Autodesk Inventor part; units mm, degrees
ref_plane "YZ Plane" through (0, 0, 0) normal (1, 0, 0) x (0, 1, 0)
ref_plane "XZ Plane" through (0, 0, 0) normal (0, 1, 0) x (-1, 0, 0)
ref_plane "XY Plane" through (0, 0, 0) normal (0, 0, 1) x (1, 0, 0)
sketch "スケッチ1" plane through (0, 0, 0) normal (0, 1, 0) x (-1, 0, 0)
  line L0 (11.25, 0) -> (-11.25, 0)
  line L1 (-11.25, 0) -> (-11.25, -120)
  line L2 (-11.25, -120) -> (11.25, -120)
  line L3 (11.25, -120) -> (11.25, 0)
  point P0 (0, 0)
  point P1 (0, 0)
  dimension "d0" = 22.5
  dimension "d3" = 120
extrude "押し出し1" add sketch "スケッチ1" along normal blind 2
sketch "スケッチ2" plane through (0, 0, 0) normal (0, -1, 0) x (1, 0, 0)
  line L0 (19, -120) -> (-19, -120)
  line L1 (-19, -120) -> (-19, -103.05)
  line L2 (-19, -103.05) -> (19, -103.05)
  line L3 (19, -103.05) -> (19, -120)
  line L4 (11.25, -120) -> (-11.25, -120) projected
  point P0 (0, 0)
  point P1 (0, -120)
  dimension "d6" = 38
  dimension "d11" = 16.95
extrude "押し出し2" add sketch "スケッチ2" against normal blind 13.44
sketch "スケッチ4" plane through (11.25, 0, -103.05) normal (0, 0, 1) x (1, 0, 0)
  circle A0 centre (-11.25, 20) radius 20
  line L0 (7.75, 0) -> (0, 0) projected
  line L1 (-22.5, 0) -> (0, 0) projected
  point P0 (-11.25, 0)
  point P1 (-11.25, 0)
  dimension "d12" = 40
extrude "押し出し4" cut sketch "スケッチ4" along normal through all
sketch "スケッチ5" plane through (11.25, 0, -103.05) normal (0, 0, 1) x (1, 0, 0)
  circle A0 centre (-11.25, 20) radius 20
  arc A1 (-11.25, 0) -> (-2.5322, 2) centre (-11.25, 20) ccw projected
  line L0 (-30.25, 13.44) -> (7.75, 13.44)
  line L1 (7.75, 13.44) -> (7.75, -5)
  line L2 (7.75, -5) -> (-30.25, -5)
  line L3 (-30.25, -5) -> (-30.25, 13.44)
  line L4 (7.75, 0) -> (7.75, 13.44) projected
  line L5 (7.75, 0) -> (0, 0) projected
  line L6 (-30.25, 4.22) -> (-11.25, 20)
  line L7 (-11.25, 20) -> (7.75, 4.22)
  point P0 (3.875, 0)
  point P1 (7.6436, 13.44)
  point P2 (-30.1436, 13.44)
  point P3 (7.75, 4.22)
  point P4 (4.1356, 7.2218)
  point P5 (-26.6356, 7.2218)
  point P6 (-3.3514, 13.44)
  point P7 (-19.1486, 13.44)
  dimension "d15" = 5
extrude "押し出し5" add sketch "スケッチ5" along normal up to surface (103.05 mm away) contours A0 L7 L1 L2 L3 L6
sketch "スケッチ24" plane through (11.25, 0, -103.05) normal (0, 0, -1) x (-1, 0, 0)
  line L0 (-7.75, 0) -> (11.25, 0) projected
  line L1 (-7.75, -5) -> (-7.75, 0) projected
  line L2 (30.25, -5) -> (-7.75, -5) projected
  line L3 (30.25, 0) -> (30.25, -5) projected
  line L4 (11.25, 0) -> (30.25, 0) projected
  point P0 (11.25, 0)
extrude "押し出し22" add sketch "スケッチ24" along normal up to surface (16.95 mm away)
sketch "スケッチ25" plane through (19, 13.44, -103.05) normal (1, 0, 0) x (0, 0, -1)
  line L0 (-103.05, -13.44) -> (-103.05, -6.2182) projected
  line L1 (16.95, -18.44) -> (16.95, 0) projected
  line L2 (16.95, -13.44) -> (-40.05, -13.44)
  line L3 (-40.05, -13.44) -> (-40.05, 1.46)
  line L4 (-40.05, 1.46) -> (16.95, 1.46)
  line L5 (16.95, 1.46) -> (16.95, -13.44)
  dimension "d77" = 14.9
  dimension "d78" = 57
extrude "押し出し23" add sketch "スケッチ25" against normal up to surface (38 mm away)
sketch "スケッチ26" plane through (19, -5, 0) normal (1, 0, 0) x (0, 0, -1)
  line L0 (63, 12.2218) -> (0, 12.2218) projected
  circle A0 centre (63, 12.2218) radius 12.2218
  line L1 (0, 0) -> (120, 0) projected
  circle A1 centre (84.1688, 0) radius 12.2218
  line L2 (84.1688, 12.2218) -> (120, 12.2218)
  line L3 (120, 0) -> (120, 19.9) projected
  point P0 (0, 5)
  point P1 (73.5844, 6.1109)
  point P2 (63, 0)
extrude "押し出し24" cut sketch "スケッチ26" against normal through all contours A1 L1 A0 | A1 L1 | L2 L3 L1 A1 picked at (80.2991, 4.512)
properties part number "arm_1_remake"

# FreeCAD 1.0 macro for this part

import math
import FreeCAD as App
import Part
import Sketcher

V = App.Vector
Q = App.Units.Quantity

doc = App.newDocument("Part")
body = doc.addObject("PartDesign::Body", "Body")

sketch1 = body.newObject("Sketcher::SketchObject", "Sketch")
sketch1.AttachmentSupport = (doc.getObject("XZ_Plane"), [""])
sketch1.MapMode = "FlatFace"
sketch1.addGeometry(Part.LineSegment(V(-11, -120, 0), V(-11, 0, 0)), False)
sketch1.addGeometry(Part.LineSegment(V(-11, 0, 0), V(11, 0, 0)), False)
sketch1.addGeometry(Part.LineSegment(V(11, 0, 0), V(11, -120, 0)), False)
sketch1.addGeometry(Part.LineSegment(V(11, -120, 0), V(-11, -120, 0)), False)
sketch1.addConstraint(Sketcher.Constraint("Coincident", 0, 2, 1, 1))
sketch1.addConstraint(Sketcher.Constraint("Coincident", 1, 2, 2, 1))
sketch1.addConstraint(Sketcher.Constraint("Coincident", 2, 2, 3, 1))
sketch1.addConstraint(Sketcher.Constraint("Coincident", 3, 2, 0, 1))
sketch1.addConstraint(Sketcher.Constraint("Vertical", 0))
sketch1.addConstraint(Sketcher.Constraint("Horizontal", 1))
sketch1.addConstraint(Sketcher.Constraint("Vertical", 2))
sketch1.addConstraint(Sketcher.Constraint("Horizontal", 3))
sketch1.addConstraint(Sketcher.Constraint("Symmetric", 0, 2, 1, 2, -1, 1))
sketch1.addConstraint(Sketcher.Constraint("DistanceY", 0, 1, 0, 2, Q("120 mm")))
sketch1.addConstraint(Sketcher.Constraint("DistanceX", 1, 1, 1, 2, Q("22.5 mm")))
pad1 = body.newObject("PartDesign::Pad", "Pad")
pad1.Profile = sketch1
pad1.Length = 2
pad1.Reversed = True

sketch2 = body.newObject("Sketcher::SketchObject", "Sketch001")
sketch2.AttachmentSupport = (doc.getObject("XZ_Plane"), [""])
sketch2.MapMode = "FlatFace"
sketch2.addGeometry(Part.LineSegment(V(-19, -120, 0), V(19, -120, 0)), False)
sketch2.addGeometry(Part.LineSegment(V(19, -120, 0), V(19, -103, 0)), False)
sketch2.addGeometry(Part.LineSegment(V(19, -103, 0), V(-19, -103, 0)), False)
sketch2.addGeometry(Part.LineSegment(V(-19, -103, 0), V(-19, -120, 0)), False)
sketch2.addConstraint(Sketcher.Constraint("Coincident", 0, 2, 1, 1))
sketch2.addConstraint(Sketcher.Constraint("Coincident", 1, 2, 2, 1))
sketch2.addConstraint(Sketcher.Constraint("Coincident", 2, 2, 3, 1))
sketch2.addConstraint(Sketcher.Constraint("Coincident", 3, 2, 0, 1))
sketch2.addConstraint(Sketcher.Constraint("Horizontal", 0))
sketch2.addConstraint(Sketcher.Constraint("Vertical", 1))
sketch2.addConstraint(Sketcher.Constraint("Horizontal", 2))
sketch2.addConstraint(Sketcher.Constraint("Vertical", 3))
sketch2.addConstraint(Sketcher.Constraint("DistanceX", 0, 1, 0, 2, Q("38 mm")))
sketch2.addConstraint(Sketcher.Constraint("DistanceY", 1, 1, 1, 2, Q("16.95 mm")))
sketch2.addConstraint(Sketcher.Constraint("DistanceX", -1, 1, 0, 2, Q("19 mm")))
sketch2.addConstraint(Sketcher.Constraint("DistanceY", 0, 2, -1, 1, Q("120 mm")))
pad2 = body.newObject("PartDesign::Pad", "Pad001")
pad2.Profile = sketch2
pad2.Length = 13.44
pad2.Reversed = True

sketch3 = body.newObject("Sketcher::SketchObject", "Sketch002")
sketch3.AttachmentSupport = (doc.getObject("XY_Plane"), [""])
sketch3.MapMode = "FlatFace"
sketch3.AttachmentOffset = App.Placement(V(0, 0, -103.05), App.Rotation())
sketch3.addGeometry(Part.Circle(V(0, 20, 0), V(0, 0, 1), 20), False)
sketch3.addConstraint(Sketcher.Constraint("PointOnObject", 0, 3, -2))
sketch3.addConstraint(Sketcher.Constraint("Diameter", 0, Q("40 mm")))
sketch3.addConstraint(Sketcher.Constraint("DistanceY", -1, 1, 0, 3, Q("20 mm")))
pocket1 = body.newObject("PartDesign::Pocket", "Pocket")
pocket1.Profile = sketch3
pocket1.Type = "ThroughAll"
pocket1.Reversed = True

sketch4 = body.newObject("Sketcher::SketchObject", "Sketch003")
sketch4.AttachmentSupport = (doc.getObject("XY_Plane"), [""])
sketch4.MapMode = "FlatFace"
sketch4.AttachmentOffset = App.Placement(V(0, 0, -103.05), App.Rotation())
sketch4.addGeometry(Part.ArcOfCircle(Part.Circle(V(0, 20, 0), V(0, 0, 1), 20), math.radians(-90), math.radians(-64)), False)
sketch4.addGeometry(Part.ArcOfCircle(Part.Circle(V(0, 20, 0), V(0, 0, 1), 20), math.radians(-140), math.radians(-90)), False)
sketch4.addGeometry(Part.LineSegment(V(-15.4, 7.2, 0), V(-19, 4.2, 0)), False)
sketch4.addGeometry(Part.LineSegment(V(-19, 4.2, 0), V(-19, -5, 0)), False)
sketch4.addGeometry(Part.LineSegment(V(-19, -5, 0), V(19, -5, 0)), False)
sketch4.addGeometry(Part.LineSegment(V(19, -5, 0), V(19, 4.2, 0)), False)
sketch4.addGeometry(Part.LineSegment(V(19, 4.2, 0), V(15.4, 7.2, 0)), False)
sketch4.addGeometry(Part.ArcOfCircle(Part.Circle(V(0, 20, 0), V(0, 0, 1), 20), math.radians(-64), math.radians(-40)), False)
sketch4.addConstraint(Sketcher.Constraint("Tangent", 0, 1, 1, 2))
sketch4.addConstraint(Sketcher.Constraint("Coincident", 1, 1, 2, 1))
sketch4.addConstraint(Sketcher.Constraint("Coincident", 2, 2, 3, 1))
sketch4.addConstraint(Sketcher.Constraint("Coincident", 3, 2, 4, 1))
sketch4.addConstraint(Sketcher.Constraint("Coincident", 4, 2, 5, 1))
sketch4.addConstraint(Sketcher.Constraint("Coincident", 5, 2, 6, 1))
sketch4.addConstraint(Sketcher.Constraint("Coincident", 6, 2, 7, 2))
sketch4.addConstraint(Sketcher.Constraint("Tangent", 7, 1, 0, 2))
sketch4.addConstraint(Sketcher.Constraint("Vertical", 3))
sketch4.addConstraint(Sketcher.Constraint("Horizontal", 4))
sketch4.addConstraint(Sketcher.Constraint("Vertical", 5))
sketch4.addConstraint(Sketcher.Constraint("Coincident", 0, 1, -1, 1))
sketch4.addConstraint(Sketcher.Constraint("Equal", 0, 1))
sketch4.addConstraint(Sketcher.Constraint("Equal", 1, 7))
sketch4.addConstraint(Sketcher.Constraint("Symmetric", 2, 2, 5, 2, -2))
sketch4.addConstraint(Sketcher.Constraint("Symmetric", 1, 1, 6, 2, -2))
sketch4.addConstraint(Sketcher.Constraint("DistanceY", 3, 2, -1, 1, Q("5 mm")))
sketch4.addConstraint(Sketcher.Constraint("Radius", 0, Q("20 mm")))
sketch4.addConstraint(Sketcher.Constraint("DistanceX", 4, 1, 4, 2, Q("38 mm")))
sketch4.addConstraint(Sketcher.Constraint("DistanceY", -1, 1, 7, 1, Q("2 mm")))
sketch4.addConstraint(Sketcher.Constraint("DistanceY", 3, 2, 3, 1, Q("9.22 mm")))
sketch4.addConstraint(Sketcher.Constraint("Angle", 2, Q("-140.2895 deg")))
pad3 = body.newObject("PartDesign::Pad", "Pad002")
pad3.Profile = sketch4
pad3.Length = 103.05

sketch5 = body.newObject("Sketcher::SketchObject", "Sketch004")
sketch5.AttachmentSupport = (doc.getObject("XY_Plane"), [""])
sketch5.MapMode = "FlatFace"
sketch5.AttachmentOffset = App.Placement(V(0, 0, -103.05), App.Rotation())
sketch5.addGeometry(Part.LineSegment(V(-19, 0, 0), V(19, 0, 0)), False)
sketch5.addGeometry(Part.LineSegment(V(19, 0, 0), V(19, -5, 0)), False)
sketch5.addGeometry(Part.LineSegment(V(19, -5, 0), V(-19, -5, 0)), False)
sketch5.addGeometry(Part.LineSegment(V(-19, -5, 0), V(-19, 0, 0)), False)
sketch5.addConstraint(Sketcher.Constraint("Coincident", 0, 2, 1, 1))
sketch5.addConstraint(Sketcher.Constraint("Coincident", 1, 2, 2, 1))
sketch5.addConstraint(Sketcher.Constraint("Coincident", 2, 2, 3, 1))
sketch5.addConstraint(Sketcher.Constraint("Coincident", 3, 2, 0, 1))
sketch5.addConstraint(Sketcher.Constraint("Horizontal", 0))
sketch5.addConstraint(Sketcher.Constraint("Vertical", 1))
sketch5.addConstraint(Sketcher.Constraint("Horizontal", 2))
sketch5.addConstraint(Sketcher.Constraint("Vertical", 3))
sketch5.addConstraint(Sketcher.Constraint("Symmetric", 0, 2, 3, 2, -1, 1))
sketch5.addConstraint(Sketcher.Constraint("DistanceX", 0, 1, 0, 2, Q("38 mm")))
sketch5.addConstraint(Sketcher.Constraint("DistanceY", 1, 2, 1, 1, Q("5 mm")))
pad4 = body.newObject("PartDesign::Pad", "Pad003")
pad4.Profile = sketch5
pad4.Length = 16.95
pad4.Reversed = True

sketch6 = body.newObject("Sketcher::SketchObject", "Sketch005")
sketch6.AttachmentSupport = (doc.getObject("YZ_Plane"), [""])
sketch6.MapMode = "FlatFace"
sketch6.AttachmentOffset = App.Placement(V(0, 0, 19), App.Rotation())
sketch6.addGeometry(Part.LineSegment(V(0, -63, 0), V(0, -120, 0)), False)
sketch6.addGeometry(Part.LineSegment(V(0, -120, 0), V(15, -120, 0)), False)
sketch6.addGeometry(Part.LineSegment(V(15, -120, 0), V(15, -63, 0)), False)
sketch6.addGeometry(Part.LineSegment(V(15, -63, 0), V(0, -63, 0)), False)
sketch6.addConstraint(Sketcher.Constraint("Coincident", 0, 2, 1, 1))
sketch6.addConstraint(Sketcher.Constraint("Coincident", 1, 2, 2, 1))
sketch6.addConstraint(Sketcher.Constraint("Coincident", 2, 2, 3, 1))
sketch6.addConstraint(Sketcher.Constraint("Coincident", 3, 2, 0, 1))
sketch6.addConstraint(Sketcher.Constraint("Vertical", 0))
sketch6.addConstraint(Sketcher.Constraint("Horizontal", 1))
sketch6.addConstraint(Sketcher.Constraint("Vertical", 2))
sketch6.addConstraint(Sketcher.Constraint("Horizontal", 3))
sketch6.addConstraint(Sketcher.Constraint("PointOnObject", 0, 2, -2))
sketch6.addConstraint(Sketcher.Constraint("DistanceY", 0, 2, 0, 1, Q("57 mm")))
sketch6.addConstraint(Sketcher.Constraint("DistanceX", 1, 1, 1, 2, Q("14.9 mm")))
sketch6.addConstraint(Sketcher.Constraint("DistanceY", 0, 2, -1, 1, Q("120 mm")))
pad5 = body.newObject("PartDesign::Pad", "Pad004")
pad5.Profile = sketch6
pad5.Length = 38
pad5.Reversed = True

sketch7 = body.newObject("Sketcher::SketchObject", "Sketch006")
sketch7.AttachmentSupport = (doc.getObject("YZ_Plane"), [""])
sketch7.MapMode = "FlatFace"
sketch7.AttachmentOffset = App.Placement(V(0, 0, 19), App.Rotation())
sketch7.addGeometry(Part.LineSegment(V(-5, -63, 0), V(-5, -120, 0)), False)
sketch7.addGeometry(Part.LineSegment(V(-5, -120, 0), V(7, -120, 0)), False)
sketch7.addGeometry(Part.LineSegment(V(7, -120, 0), V(7, -84, 0)), False)
sketch7.addGeometry(Part.ArcOfCircle(Part.Circle(V(-5, -84, 0), V(0, 0, 1), 12), math.radians(0), math.radians(60)), False)
sketch7.addGeometry(Part.ArcOfCircle(Part.Circle(V(7, -63, 0), V(0, 0, 1), 12), math.radians(180), math.radians(240)), False)
sketch7.addConstraint(Sketcher.Constraint("Coincident", 0, 2, 1, 1))
sketch7.addConstraint(Sketcher.Constraint("Coincident", 1, 2, 2, 1))
sketch7.addConstraint(Sketcher.Constraint("Tangent", 2, 2, 3, 1))
sketch7.addConstraint(Sketcher.Constraint("Tangent", 3, 2, 4, 2))
sketch7.addConstraint(Sketcher.Constraint("Tangent", 4, 1, 0, 1))
sketch7.addConstraint(Sketcher.Constraint("Vertical", 0))
sketch7.addConstraint(Sketcher.Constraint("Horizontal", 1))
sketch7.addConstraint(Sketcher.Constraint("Vertical", 2))
sketch7.addConstraint(Sketcher.Constraint("Equal", 3, 4))
sketch7.addConstraint(Sketcher.Constraint("Vertical", 3, 3, 0, 2))
sketch7.addConstraint(Sketcher.Constraint("DistanceY", 0, 2, 0, 1, Q("57 mm")))
sketch7.addConstraint(Sketcher.Constraint("DistanceX", 3, 3, -1, 1, Q("5 mm")))
sketch7.addConstraint(Sketcher.Constraint("DistanceY", 4, 3, -1, 1, Q("63 mm")))
sketch7.addConstraint(Sketcher.Constraint("Radius", 3, Q("12.2218 mm")))
pocket2 = body.newObject("PartDesign::Pocket", "Pocket001")
pocket2.Profile = sketch7
pocket2.Type = "ThroughAll"

doc.recompute()
